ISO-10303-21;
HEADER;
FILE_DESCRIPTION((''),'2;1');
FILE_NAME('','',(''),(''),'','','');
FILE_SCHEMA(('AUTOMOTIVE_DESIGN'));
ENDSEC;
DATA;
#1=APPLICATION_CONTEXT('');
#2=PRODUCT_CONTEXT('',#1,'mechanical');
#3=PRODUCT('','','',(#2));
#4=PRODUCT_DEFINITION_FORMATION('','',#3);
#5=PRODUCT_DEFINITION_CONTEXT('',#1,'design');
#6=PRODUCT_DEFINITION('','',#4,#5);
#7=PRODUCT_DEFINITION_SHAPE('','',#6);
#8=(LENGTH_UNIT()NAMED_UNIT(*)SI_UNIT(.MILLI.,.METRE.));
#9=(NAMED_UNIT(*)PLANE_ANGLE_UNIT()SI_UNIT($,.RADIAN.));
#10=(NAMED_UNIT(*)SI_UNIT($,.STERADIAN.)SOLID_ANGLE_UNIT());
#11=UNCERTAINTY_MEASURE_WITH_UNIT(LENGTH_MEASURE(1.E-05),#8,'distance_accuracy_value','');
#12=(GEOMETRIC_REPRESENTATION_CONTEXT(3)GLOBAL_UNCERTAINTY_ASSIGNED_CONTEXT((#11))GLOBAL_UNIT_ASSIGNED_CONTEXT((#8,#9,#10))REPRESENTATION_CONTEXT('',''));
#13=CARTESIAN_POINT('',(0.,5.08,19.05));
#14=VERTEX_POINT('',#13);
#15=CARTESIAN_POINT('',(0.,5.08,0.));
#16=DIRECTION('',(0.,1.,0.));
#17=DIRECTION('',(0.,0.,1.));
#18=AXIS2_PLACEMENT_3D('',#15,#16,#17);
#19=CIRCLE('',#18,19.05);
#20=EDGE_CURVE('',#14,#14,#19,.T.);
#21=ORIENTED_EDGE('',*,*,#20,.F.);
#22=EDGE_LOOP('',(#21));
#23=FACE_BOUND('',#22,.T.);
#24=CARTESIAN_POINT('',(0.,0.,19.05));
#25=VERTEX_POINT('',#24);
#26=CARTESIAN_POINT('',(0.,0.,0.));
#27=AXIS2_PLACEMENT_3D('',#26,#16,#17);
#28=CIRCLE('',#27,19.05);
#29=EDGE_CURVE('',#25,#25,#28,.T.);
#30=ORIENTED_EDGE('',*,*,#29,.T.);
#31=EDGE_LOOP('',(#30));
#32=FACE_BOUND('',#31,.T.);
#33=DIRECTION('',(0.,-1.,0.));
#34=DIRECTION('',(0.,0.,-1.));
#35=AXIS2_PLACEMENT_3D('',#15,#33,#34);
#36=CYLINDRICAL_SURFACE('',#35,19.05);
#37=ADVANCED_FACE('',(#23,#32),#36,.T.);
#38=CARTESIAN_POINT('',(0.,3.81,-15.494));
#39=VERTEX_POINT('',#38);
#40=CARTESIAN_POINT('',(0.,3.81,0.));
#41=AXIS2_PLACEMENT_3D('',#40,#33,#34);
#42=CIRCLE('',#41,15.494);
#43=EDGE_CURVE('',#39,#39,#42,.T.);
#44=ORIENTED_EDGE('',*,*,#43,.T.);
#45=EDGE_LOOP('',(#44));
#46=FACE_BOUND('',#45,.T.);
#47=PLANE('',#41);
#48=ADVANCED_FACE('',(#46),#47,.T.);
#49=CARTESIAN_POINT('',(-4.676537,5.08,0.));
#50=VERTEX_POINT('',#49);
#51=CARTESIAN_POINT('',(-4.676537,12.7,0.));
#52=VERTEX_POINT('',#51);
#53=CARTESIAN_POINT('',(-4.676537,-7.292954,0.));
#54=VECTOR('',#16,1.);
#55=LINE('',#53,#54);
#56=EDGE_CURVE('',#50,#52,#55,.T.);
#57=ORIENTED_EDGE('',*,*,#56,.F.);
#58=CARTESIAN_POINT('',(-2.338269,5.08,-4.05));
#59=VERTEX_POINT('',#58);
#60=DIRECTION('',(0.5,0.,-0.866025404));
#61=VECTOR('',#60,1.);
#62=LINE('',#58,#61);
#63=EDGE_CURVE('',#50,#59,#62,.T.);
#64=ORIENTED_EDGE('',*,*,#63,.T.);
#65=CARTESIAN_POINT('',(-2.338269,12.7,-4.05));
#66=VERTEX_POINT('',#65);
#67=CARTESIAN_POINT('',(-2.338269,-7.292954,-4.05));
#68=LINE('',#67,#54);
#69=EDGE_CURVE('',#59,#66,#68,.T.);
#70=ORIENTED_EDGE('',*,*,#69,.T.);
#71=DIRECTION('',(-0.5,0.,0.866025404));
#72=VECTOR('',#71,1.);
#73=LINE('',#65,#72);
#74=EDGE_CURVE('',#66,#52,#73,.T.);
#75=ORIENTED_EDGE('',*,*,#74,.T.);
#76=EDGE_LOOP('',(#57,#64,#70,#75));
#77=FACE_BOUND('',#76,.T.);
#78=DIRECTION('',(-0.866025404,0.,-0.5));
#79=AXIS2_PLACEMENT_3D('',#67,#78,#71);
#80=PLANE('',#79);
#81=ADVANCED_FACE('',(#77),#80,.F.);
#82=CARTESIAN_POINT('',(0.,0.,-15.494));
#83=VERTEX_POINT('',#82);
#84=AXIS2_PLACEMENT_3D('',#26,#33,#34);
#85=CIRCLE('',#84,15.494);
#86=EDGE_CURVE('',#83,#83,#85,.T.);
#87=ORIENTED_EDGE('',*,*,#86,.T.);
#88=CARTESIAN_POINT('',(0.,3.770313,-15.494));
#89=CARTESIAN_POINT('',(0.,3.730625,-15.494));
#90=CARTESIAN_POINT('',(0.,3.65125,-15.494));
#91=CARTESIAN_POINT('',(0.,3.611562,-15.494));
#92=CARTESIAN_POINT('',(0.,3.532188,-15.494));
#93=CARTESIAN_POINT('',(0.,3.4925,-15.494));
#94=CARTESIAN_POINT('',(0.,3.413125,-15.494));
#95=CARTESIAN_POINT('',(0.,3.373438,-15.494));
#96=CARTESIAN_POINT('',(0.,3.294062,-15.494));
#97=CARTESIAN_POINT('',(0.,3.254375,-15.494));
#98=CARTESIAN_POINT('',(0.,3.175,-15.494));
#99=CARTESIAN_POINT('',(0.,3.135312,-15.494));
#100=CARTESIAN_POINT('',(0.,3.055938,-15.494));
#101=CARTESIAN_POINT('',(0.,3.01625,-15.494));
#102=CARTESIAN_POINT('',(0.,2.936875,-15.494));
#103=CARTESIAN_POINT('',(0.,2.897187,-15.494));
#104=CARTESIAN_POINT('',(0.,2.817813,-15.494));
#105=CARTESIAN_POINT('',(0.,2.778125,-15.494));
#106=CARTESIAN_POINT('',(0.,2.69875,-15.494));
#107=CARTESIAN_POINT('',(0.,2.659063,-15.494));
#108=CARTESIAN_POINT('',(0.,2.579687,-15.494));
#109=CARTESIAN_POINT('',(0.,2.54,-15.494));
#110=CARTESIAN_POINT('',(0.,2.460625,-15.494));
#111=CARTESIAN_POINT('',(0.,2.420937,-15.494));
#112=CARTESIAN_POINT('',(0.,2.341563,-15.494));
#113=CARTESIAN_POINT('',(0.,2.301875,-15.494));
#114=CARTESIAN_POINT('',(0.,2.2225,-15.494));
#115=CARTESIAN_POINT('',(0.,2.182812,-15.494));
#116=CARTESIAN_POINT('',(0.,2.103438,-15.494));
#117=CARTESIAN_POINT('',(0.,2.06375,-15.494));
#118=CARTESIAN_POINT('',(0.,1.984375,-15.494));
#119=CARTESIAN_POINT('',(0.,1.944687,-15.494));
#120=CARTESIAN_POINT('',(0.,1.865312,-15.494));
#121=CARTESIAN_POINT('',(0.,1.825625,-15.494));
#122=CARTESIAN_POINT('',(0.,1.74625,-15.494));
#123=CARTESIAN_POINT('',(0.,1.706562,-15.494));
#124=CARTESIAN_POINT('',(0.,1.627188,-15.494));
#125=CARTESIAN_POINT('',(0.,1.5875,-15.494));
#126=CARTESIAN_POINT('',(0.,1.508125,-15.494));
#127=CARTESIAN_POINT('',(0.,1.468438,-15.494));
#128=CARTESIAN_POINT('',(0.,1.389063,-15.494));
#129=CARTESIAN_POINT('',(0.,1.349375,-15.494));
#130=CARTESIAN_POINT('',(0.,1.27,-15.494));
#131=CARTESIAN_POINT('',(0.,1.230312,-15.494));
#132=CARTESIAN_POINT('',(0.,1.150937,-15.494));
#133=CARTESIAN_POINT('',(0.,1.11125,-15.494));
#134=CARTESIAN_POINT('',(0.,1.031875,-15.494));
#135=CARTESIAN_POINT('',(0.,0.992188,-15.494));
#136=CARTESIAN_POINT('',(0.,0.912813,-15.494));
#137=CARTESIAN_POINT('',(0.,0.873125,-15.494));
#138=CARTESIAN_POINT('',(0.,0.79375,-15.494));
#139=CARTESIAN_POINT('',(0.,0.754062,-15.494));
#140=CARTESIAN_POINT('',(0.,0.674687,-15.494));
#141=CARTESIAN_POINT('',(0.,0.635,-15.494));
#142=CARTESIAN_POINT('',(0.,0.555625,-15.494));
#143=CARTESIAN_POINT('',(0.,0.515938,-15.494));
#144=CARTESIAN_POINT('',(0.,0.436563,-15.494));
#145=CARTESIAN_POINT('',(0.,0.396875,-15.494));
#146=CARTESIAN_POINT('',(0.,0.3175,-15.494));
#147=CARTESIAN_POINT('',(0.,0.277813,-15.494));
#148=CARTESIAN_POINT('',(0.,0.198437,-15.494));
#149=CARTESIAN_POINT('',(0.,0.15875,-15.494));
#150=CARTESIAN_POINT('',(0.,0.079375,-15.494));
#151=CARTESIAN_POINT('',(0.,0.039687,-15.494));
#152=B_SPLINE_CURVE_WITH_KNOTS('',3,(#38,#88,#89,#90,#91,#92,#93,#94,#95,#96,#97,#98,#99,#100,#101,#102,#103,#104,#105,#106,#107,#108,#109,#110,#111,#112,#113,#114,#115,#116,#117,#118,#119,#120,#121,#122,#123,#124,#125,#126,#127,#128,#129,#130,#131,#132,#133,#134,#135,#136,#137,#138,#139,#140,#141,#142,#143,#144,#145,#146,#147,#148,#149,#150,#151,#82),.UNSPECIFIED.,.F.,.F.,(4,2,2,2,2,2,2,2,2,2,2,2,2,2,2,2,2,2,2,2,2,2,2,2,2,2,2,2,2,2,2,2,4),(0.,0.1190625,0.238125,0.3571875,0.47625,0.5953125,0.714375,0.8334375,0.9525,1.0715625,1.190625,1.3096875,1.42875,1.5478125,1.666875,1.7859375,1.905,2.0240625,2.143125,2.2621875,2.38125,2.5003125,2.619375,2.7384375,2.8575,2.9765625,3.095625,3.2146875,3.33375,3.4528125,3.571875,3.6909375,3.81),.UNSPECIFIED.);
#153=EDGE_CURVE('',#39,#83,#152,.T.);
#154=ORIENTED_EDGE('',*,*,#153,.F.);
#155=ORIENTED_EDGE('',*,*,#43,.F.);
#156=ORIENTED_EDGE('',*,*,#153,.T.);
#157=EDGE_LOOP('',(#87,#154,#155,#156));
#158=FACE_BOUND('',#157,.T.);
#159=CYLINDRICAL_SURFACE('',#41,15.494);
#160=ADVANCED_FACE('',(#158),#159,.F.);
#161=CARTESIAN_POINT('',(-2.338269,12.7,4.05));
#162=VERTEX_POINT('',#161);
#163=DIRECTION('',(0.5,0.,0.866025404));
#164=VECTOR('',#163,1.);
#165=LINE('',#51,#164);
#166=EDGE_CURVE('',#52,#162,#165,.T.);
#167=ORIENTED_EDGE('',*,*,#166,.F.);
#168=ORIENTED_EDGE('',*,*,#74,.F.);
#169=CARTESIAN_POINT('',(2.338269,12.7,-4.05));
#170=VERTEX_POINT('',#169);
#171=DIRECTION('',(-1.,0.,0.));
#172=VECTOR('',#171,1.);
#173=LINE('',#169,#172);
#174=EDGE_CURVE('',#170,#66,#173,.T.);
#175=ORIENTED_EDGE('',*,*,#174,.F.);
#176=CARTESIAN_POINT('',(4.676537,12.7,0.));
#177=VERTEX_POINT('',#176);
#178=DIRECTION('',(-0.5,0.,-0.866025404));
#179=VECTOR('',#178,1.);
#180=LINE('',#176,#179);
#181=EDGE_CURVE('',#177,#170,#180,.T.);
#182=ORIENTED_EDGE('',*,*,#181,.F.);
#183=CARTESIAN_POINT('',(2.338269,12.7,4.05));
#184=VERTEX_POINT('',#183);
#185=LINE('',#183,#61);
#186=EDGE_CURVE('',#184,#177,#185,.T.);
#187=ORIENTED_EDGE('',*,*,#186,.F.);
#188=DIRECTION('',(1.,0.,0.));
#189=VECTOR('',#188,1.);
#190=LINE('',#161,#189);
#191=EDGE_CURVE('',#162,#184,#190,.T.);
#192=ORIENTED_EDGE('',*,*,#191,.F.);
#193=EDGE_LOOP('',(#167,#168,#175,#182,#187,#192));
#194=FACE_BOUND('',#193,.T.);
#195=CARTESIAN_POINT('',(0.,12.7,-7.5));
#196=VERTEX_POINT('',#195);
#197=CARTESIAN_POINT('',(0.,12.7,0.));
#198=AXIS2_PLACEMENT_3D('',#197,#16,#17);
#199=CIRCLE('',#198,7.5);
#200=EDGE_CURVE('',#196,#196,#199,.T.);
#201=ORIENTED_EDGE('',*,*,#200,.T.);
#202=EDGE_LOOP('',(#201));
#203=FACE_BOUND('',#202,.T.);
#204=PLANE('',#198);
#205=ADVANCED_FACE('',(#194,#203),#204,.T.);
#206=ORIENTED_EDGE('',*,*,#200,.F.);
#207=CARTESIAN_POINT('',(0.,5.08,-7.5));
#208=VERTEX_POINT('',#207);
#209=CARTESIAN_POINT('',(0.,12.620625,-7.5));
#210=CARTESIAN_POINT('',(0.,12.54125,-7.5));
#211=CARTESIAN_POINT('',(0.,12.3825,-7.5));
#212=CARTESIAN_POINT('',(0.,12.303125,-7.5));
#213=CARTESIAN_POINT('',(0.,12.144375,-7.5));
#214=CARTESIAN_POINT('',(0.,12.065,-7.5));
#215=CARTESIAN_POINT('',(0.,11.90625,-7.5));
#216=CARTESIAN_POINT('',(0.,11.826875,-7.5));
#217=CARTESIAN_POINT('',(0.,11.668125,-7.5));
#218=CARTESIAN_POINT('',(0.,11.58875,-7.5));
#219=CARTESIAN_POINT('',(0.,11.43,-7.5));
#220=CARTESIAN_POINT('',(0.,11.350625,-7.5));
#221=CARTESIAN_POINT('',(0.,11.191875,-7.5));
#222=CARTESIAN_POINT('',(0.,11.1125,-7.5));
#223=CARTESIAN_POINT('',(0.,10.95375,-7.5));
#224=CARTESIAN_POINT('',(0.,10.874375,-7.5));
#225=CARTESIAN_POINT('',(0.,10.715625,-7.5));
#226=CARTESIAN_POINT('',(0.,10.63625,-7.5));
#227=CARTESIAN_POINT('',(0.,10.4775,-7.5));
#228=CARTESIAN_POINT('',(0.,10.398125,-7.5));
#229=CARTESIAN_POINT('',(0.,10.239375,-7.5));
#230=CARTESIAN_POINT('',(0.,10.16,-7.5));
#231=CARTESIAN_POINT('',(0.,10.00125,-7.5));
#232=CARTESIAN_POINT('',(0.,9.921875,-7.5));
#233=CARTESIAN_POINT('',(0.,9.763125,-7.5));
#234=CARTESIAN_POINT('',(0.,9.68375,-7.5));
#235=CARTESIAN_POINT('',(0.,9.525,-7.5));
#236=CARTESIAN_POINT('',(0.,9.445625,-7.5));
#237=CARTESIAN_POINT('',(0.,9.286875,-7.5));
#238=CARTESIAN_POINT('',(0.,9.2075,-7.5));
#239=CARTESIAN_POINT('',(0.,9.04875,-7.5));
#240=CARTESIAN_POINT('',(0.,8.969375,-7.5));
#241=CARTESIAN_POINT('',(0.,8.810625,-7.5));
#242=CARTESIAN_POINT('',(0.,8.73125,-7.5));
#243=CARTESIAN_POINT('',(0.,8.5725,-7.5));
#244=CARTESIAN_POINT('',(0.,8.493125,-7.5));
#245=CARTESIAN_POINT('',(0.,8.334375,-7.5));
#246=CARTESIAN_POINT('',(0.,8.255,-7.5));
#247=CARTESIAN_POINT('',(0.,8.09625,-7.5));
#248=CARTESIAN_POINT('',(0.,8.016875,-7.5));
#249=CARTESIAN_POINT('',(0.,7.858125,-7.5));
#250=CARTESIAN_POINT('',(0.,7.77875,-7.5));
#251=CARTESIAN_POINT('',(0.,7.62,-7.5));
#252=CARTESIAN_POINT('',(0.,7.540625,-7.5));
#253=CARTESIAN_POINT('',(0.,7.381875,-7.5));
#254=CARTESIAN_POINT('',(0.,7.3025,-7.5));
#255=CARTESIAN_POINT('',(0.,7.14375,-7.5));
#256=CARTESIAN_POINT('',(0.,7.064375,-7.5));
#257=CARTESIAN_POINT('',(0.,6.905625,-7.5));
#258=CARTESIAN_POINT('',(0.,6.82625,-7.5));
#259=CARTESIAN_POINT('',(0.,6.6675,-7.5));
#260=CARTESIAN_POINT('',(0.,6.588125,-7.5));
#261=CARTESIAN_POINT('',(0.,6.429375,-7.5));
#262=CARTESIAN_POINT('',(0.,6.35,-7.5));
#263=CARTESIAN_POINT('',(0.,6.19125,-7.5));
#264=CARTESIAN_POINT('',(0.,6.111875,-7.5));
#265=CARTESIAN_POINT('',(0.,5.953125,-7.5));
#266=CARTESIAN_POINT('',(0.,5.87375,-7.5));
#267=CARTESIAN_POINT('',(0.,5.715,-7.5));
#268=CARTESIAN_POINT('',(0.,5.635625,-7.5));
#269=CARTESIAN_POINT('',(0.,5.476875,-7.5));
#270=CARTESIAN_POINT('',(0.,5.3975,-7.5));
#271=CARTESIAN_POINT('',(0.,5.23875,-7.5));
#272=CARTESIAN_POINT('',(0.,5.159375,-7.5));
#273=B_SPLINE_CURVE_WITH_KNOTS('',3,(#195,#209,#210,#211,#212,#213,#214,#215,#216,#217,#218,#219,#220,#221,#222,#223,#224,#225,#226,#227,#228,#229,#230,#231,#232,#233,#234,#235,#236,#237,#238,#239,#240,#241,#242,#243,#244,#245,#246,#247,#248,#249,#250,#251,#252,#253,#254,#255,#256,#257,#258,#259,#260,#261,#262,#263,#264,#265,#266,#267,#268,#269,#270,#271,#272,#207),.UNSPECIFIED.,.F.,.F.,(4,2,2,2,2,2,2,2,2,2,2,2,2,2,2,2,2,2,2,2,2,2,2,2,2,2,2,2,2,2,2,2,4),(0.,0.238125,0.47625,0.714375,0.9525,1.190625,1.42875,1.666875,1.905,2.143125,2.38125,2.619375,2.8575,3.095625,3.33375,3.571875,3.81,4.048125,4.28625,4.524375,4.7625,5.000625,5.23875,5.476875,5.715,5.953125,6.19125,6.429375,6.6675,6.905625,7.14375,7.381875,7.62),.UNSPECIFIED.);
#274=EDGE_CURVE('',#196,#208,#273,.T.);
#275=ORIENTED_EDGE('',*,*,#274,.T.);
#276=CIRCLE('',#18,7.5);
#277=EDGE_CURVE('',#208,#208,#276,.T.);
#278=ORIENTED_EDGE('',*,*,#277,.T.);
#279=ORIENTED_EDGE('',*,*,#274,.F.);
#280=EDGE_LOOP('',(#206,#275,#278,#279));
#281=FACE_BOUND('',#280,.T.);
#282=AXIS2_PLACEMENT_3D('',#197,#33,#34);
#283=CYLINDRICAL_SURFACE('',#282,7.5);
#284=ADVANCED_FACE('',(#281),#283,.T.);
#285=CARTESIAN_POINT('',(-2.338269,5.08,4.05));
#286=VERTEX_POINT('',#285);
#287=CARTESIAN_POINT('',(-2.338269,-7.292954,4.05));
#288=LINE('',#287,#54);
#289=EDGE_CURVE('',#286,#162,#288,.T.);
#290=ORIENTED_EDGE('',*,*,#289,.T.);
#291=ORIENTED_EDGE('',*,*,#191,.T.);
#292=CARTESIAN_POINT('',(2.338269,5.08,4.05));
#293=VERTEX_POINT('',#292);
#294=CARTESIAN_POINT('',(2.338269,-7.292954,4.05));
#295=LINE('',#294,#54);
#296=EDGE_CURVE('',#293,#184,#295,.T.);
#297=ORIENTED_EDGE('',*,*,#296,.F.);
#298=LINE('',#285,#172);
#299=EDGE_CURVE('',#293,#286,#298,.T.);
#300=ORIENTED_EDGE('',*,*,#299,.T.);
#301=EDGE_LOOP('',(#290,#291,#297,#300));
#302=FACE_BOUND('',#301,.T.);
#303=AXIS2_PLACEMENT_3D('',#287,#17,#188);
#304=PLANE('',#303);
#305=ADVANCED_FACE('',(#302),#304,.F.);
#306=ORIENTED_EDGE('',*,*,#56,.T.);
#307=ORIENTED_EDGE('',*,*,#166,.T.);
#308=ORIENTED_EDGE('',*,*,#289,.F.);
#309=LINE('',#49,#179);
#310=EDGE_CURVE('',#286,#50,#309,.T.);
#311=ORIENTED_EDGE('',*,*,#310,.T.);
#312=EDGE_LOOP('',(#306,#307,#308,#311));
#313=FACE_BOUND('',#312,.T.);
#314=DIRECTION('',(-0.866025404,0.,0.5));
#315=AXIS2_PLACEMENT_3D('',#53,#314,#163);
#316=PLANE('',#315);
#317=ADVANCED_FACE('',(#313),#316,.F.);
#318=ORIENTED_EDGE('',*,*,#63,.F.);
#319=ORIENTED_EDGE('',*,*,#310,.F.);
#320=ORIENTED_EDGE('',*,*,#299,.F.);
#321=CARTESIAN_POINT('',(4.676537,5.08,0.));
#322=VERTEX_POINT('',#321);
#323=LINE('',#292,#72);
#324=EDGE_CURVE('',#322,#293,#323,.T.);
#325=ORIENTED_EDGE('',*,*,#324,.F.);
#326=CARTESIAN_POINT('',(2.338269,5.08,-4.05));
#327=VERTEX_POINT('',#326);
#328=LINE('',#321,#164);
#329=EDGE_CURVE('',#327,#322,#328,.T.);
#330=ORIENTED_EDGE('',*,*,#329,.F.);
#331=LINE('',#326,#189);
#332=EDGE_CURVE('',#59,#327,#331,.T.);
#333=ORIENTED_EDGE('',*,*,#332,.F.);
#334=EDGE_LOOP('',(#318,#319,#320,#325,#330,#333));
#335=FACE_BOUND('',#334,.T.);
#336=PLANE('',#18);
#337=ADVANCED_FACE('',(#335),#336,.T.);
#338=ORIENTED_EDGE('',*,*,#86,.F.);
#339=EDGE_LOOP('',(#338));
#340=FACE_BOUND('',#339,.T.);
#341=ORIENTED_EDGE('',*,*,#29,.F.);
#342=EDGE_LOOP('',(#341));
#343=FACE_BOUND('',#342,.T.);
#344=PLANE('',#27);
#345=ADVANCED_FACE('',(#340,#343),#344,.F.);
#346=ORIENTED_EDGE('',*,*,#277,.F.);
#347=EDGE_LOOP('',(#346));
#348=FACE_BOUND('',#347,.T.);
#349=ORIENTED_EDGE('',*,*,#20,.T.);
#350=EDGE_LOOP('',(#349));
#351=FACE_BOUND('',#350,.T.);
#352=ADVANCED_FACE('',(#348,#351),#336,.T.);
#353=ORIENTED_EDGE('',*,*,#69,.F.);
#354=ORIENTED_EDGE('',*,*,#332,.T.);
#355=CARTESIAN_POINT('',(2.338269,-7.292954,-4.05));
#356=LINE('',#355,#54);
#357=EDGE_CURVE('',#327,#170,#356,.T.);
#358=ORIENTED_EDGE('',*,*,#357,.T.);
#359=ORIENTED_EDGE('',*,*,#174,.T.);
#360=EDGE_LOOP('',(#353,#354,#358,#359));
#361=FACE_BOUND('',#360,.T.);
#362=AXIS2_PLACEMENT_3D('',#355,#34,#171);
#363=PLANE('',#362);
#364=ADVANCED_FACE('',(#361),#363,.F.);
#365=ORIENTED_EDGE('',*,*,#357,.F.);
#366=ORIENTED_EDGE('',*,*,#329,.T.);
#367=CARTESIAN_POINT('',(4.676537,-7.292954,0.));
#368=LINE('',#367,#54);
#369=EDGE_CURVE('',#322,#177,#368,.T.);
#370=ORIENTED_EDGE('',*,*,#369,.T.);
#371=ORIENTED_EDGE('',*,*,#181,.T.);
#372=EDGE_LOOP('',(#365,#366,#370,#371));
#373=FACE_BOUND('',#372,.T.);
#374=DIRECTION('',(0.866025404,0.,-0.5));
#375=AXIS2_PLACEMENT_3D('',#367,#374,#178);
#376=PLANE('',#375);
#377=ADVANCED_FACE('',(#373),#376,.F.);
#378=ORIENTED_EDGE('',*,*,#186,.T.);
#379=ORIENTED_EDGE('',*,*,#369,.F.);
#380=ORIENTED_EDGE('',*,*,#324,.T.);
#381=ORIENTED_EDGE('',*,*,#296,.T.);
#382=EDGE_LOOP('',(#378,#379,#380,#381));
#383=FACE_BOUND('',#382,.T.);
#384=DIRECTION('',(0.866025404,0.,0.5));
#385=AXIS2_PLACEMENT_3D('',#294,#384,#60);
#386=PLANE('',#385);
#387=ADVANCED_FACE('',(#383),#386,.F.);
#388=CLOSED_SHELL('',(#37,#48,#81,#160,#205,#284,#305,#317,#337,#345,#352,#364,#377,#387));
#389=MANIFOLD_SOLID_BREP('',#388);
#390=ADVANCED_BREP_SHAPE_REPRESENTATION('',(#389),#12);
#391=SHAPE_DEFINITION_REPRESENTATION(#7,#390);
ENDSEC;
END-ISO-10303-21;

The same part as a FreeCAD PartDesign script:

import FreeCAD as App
import Part
import Sketcher
Q = App.Units.Quantity


def add_polygon(sketch, points):
    """Adds a closed chain of lines whose ends are joined by coincident constraints."""
    first, n = sketch.GeometryCount, len(points)
    for a, b in zip(points, points[1:] + points[:1]):
        sketch.addGeometry(Part.LineSegment(App.Vector(*a, 0), App.Vector(*b, 0)), False)
    for i in range(n):
        sketch.addConstraint(Sketcher.Constraint("Coincident", first + i, 2, first + (i + 1) % n, 1))

doc = App.newDocument("Part")
body = doc.addObject("PartDesign::Body", "Body")

sketch1 = body.newObject("Sketcher::SketchObject", "Sketch")
sketch1.AttachmentSupport = (doc.getObject("XZ_Plane"), [""])
sketch1.MapMode = "FlatFace"
sketch1.addGeometry(Part.Circle(App.Vector(0, 0, 0), App.Vector(0, 0, 1), 19.05), False)
sketch1.addConstraint([
    Sketcher.Constraint("Coincident", 0, 3, -1, 1),
    Sketcher.Constraint("Diameter", 0, Q("1.5 in")),
])
pad1 = body.newObject("PartDesign::Pad", "Pad")
pad1.Profile = sketch1
pad1.Length = Q("0.2 in")
pad1.Reversed = True

sketch2 = body.newObject("Sketcher::SketchObject", "Sketch001")
sketch2.AttachmentSupport = (doc.getObject("XZ_Plane"), [""])
sketch2.MapMode = "FlatFace"
sketch2.AttachmentOffset = App.Placement(App.Vector(0, 0, -0.2 * 25.4), App.Rotation())
sketch2.addGeometry(Part.Circle(App.Vector(0, 0, 0), App.Vector(0, 0, 1), 7.5), False)
sketch2.addConstraint([
    Sketcher.Constraint("Coincident", 0, 3, -1, 1),
    Sketcher.Constraint("Diameter", 0, 15.0),
])
pad2 = body.newObject("PartDesign::Pad", "Pad001")
pad2.Profile = sketch2
pad2.Length = Q("0.3 in")
pad2.Reversed = True

sketch3 = body.newObject("Sketcher::SketchObject", "Sketch002")
sketch3.AttachmentSupport = (doc.getObject("XZ_Plane"), [""])
sketch3.MapMode = "FlatFace"
sketch3.AttachmentOffset = App.Placement(App.Vector(0, 0, -0.5 * 25.4), App.Rotation())
add_polygon(sketch3, [(4.676537, 0), (2.338269, -4.05), (-2.338269, -4.05), (-4.676537, 0), (-2.338269, 4.05), (2.338269, 4.05)])
sketch3.addConstraint([
    Sketcher.Constraint("Horizontal", 1),
    Sketcher.Constraint("Horizontal", 4),
    Sketcher.Constraint("Symmetric", 0, 2, 3, 2, -1, 1),
    Sketcher.Constraint("Symmetric", 2, 2, 5, 2, -1, 1),
    Sketcher.Constraint("PointOnObject", 2, 2, -1),
    Sketcher.Constraint("Parallel", 2, 5),
    Sketcher.Constraint("Vertical", 1, 2, 3, 2),
    Sketcher.Constraint("Angle", 0, Q("-120 deg")),
    Sketcher.Constraint("DistanceY", 0, 2, -1, 1, 4.05),
    Sketcher.Constraint("DistanceX", 1, 2, 1, 1, 4.676537),
])
pocket1 = body.newObject("PartDesign::Pocket", "Pocket")
pocket1.Profile = sketch3
pocket1.Length = Q("0.3 in")
pocket1.Reversed = True

sketch4 = body.newObject("Sketcher::SketchObject", "Sketch003")
sketch4.AttachmentSupport = (doc.getObject("XZ_Plane"), [""])
sketch4.MapMode = "FlatFace"
sketch4.addGeometry(Part.Circle(App.Vector(0, 0, 0), App.Vector(0, 0, 1), 15.494), False)
sketch4.addConstraint([
    Sketcher.Constraint("Coincident", 0, 3, -1, 1),
    Sketcher.Constraint("Diameter", 0, Q("1.22 in")),
])
pocket2 = body.newObject("PartDesign::Pocket", "Pocket001")
pocket2.Profile = sketch4
pocket2.Length = Q("0.15 in")

doc.recompute()
